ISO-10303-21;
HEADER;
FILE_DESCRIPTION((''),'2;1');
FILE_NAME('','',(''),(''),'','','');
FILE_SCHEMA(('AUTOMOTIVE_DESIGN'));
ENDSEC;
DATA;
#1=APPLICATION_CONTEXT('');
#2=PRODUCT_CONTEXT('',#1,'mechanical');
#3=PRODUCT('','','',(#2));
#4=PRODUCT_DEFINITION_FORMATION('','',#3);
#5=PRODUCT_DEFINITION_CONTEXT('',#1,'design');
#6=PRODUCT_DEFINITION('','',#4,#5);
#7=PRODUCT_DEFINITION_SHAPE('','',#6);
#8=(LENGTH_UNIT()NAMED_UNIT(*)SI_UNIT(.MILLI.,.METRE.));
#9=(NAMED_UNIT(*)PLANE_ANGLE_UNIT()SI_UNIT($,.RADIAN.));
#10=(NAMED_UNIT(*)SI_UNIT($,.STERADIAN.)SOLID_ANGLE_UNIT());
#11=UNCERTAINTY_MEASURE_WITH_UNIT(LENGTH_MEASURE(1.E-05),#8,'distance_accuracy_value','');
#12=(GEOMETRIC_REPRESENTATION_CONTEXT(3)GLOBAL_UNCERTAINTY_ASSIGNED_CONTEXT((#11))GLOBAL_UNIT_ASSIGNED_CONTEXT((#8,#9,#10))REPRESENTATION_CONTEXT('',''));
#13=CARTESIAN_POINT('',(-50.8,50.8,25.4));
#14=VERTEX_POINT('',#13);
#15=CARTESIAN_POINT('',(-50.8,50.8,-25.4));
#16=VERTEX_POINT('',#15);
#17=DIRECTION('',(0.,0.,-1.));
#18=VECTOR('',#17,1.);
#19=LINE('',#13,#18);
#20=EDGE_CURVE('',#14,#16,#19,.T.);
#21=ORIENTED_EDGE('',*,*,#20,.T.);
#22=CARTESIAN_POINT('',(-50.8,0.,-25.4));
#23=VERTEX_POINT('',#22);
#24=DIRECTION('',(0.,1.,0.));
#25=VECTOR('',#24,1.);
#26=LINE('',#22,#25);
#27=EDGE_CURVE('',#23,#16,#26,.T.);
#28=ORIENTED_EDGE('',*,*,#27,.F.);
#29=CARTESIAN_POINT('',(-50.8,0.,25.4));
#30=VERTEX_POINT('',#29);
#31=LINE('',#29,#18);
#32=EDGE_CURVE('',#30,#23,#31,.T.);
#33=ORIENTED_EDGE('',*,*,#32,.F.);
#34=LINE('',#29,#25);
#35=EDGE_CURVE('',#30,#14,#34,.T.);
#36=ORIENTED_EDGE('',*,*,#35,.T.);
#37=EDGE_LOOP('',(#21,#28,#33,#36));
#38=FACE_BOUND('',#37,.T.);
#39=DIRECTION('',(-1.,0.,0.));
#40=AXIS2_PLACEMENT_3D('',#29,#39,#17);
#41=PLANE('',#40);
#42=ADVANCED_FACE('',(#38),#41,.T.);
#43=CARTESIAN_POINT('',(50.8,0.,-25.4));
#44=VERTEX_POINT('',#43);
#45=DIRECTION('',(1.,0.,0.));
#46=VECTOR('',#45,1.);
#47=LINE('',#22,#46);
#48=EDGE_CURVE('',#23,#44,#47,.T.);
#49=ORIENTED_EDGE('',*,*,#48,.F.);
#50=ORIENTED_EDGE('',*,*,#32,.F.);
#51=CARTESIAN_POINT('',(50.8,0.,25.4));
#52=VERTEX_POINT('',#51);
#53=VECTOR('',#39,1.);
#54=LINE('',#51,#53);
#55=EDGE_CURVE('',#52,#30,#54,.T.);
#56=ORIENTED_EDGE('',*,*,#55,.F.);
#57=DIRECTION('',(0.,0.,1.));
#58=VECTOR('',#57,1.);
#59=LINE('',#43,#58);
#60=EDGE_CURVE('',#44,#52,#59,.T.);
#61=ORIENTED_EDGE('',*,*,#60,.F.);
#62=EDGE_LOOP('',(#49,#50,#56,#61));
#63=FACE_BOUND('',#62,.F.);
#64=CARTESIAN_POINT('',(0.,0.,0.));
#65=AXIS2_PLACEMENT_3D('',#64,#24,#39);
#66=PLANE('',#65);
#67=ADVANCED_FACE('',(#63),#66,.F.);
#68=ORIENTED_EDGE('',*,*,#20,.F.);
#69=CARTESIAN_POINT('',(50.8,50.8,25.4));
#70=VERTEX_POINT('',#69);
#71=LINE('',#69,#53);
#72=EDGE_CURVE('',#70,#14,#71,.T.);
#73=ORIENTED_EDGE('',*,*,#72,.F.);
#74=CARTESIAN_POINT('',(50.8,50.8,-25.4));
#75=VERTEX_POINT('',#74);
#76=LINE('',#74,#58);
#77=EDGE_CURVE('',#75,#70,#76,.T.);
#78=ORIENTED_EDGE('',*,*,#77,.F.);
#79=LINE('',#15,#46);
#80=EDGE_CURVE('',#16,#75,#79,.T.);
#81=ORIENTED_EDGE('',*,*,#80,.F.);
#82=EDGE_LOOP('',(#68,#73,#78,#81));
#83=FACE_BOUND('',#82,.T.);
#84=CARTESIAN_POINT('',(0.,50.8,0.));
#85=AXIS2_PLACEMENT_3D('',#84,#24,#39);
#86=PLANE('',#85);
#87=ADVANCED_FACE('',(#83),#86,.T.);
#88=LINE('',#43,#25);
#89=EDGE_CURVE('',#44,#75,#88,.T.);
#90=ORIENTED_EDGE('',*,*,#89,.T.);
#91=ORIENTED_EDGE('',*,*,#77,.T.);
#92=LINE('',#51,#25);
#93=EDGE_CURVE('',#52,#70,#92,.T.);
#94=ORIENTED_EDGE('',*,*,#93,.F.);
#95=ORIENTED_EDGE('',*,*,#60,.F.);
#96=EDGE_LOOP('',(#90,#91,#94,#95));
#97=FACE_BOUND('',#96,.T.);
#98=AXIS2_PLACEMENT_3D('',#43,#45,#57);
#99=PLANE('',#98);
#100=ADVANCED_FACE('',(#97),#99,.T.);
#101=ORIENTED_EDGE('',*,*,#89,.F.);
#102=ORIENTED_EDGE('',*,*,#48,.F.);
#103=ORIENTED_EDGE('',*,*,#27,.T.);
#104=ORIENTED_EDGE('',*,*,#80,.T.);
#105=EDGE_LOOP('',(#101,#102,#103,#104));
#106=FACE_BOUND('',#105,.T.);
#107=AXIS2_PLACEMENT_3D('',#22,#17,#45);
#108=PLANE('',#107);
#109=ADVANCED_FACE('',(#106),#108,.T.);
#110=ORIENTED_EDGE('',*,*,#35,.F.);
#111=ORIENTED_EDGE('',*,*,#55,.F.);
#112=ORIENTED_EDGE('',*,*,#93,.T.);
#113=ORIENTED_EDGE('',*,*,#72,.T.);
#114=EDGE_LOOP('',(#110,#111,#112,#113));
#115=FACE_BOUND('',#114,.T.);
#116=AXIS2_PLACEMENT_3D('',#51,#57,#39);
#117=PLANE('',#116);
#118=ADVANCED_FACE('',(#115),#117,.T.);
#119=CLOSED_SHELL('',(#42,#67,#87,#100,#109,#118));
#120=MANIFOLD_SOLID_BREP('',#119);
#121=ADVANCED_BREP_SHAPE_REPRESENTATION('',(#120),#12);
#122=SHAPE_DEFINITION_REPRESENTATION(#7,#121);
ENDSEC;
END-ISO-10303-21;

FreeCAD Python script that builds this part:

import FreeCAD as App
import Part
import Sketcher
Q = App.Units.Quantity

doc = App.newDocument("Part")
body = doc.addObject("PartDesign::Body", "Body")

sketch1 = doc.addObject("Sketcher::SketchObject", "Sketch")
body.addObject(sketch1)
sketch1.AttachmentSupport = (doc.XZ_Plane, [""])
sketch1.MapMode = "FlatFace"
sketch1.addGeometry([
    Part.LineSegment(App.Vector(-50.8, 25.4, 0), App.Vector(50.8, 25.4, 0)),
    Part.LineSegment(App.Vector(50.8, 25.4, 0), App.Vector(50.8, -25.4, 0)),
    Part.LineSegment(App.Vector(50.8, -25.4, 0), App.Vector(-50.8, -25.4, 0)),
    Part.LineSegment(App.Vector(-50.8, -25.4, 0), App.Vector(-50.8, 25.4, 0)),
], False)
sketch1.addConstraint([
    Sketcher.Constraint("Coincident", 0, 2, 1, 1),
    Sketcher.Constraint("Coincident", 1, 2, 2, 1),
    Sketcher.Constraint("Coincident", 2, 2, 3, 1),
    Sketcher.Constraint("Coincident", 3, 2, 0, 1),
    Sketcher.Constraint("Horizontal", 0),
    Sketcher.Constraint("Vertical", 1),
    Sketcher.Constraint("Horizontal", 2),
    Sketcher.Constraint("Vertical", 3),
    Sketcher.Constraint("Symmetric", 0, 2, 2, 2, -1, 1),
    Sketcher.Constraint("DistanceX", 0, 1, 0, 2, Q("4 in")),
    Sketcher.Constraint("DistanceY", 1, 2, 1, 1, Q("2 in")),
])
pad1 = doc.addObject("PartDesign::Pad", "Pad")
body.addObject(pad1)
pad1.Profile = sketch1
pad1.Length = Q("2 in")
pad1.Reversed = True

doc.recompute()
